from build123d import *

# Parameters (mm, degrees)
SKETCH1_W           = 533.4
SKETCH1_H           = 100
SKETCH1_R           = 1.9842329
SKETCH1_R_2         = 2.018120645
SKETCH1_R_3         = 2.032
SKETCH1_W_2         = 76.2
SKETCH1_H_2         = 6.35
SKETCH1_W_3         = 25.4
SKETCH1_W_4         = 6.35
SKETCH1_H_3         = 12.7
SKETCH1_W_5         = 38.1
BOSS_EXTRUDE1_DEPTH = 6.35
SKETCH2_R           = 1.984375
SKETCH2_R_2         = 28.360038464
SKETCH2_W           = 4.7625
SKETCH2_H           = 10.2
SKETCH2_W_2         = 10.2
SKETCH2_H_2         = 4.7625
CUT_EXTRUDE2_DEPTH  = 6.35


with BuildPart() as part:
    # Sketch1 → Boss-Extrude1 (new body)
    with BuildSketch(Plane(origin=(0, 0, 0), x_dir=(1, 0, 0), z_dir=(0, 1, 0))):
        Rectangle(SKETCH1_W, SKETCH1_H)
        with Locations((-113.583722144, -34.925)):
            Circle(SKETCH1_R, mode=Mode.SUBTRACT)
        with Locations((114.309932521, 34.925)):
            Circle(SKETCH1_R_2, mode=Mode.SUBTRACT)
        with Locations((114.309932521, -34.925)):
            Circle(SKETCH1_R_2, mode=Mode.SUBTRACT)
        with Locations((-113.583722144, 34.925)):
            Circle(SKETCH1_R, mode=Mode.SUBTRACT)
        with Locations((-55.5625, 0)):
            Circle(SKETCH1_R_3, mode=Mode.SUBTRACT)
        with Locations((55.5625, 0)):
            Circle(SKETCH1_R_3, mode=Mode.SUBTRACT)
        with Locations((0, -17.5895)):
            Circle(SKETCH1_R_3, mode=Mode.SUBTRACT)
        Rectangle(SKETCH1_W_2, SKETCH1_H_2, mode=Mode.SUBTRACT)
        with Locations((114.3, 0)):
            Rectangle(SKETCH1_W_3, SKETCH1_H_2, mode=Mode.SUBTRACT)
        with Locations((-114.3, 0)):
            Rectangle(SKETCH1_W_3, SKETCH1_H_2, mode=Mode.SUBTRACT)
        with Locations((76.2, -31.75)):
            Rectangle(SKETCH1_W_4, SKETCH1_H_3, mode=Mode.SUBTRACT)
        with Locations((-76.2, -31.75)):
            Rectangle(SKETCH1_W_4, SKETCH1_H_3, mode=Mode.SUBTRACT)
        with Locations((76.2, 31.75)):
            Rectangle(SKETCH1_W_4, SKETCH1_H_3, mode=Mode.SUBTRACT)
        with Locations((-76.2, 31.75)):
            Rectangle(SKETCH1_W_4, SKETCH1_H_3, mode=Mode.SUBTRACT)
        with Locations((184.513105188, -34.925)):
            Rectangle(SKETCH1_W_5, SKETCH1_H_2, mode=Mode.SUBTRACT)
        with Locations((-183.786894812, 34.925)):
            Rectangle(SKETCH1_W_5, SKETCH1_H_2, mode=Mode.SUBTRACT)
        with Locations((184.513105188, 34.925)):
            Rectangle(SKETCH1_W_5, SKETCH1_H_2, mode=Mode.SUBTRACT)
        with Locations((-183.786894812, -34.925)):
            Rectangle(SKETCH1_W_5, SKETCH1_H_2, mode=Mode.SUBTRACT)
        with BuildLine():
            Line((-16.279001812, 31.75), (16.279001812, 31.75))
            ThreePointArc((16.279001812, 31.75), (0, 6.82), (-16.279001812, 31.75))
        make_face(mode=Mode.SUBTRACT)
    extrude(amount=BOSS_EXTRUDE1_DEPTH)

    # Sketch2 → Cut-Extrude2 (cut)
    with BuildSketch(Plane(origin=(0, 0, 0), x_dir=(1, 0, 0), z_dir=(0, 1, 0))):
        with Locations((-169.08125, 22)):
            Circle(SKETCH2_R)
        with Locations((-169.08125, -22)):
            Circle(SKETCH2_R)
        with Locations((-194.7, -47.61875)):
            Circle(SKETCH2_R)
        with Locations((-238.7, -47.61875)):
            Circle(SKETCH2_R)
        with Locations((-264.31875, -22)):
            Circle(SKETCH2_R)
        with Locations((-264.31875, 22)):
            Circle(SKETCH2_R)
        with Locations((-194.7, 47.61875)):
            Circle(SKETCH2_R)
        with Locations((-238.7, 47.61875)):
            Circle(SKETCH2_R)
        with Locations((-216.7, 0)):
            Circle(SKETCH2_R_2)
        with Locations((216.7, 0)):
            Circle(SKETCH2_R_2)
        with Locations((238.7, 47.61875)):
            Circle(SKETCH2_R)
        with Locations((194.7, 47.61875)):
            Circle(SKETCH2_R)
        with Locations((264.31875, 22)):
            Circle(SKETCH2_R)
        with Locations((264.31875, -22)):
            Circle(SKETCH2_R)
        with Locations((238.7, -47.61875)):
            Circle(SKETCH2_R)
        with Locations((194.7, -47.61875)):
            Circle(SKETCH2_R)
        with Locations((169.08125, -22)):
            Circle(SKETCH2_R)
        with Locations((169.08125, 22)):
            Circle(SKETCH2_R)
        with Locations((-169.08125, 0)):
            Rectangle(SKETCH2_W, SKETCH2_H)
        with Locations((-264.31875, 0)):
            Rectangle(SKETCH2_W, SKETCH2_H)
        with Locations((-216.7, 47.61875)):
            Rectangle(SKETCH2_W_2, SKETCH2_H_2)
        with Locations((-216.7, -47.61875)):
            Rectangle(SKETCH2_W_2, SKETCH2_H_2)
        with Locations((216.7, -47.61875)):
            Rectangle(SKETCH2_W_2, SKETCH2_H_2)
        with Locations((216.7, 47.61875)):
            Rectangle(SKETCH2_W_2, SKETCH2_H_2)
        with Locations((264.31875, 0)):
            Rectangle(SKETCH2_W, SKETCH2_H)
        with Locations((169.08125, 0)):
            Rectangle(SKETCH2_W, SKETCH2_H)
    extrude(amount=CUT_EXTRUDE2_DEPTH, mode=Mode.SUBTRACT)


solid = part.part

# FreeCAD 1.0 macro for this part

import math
import FreeCAD as App
import Part
import Sketcher

V = App.Vector
Q = App.Units.Quantity


def add_polygon(sketch, points):
    """Adds a closed chain of lines whose ends are joined by coincident constraints."""
    first, n = sketch.GeometryCount, len(points)
    for a, b in zip(points, points[1:] + points[:1]):
        sketch.addGeometry(Part.LineSegment(App.Vector(*a, 0), App.Vector(*b, 0)), False)
    for i in range(n):
        sketch.addConstraint(Sketcher.Constraint("Coincident", first + i, 2, first + (i + 1) % n, 1))

doc = App.newDocument("Part")
params = doc.addObject("Spreadsheet::Sheet", "Params")
for row, (alias, value) in enumerate([
    ("sketch1_radius", "0.7 in"),
    ("sketch1_diameter", "0.16 in"),
    ("sketch1_width", "21 in"),
    ("sketch1_width2", "1 in"),
    ("sketch1_width3", "3 in"),
    ("pad1_length", "0.25 in"),
    ("sketch2_diameter", "0.15625 in"),
    ("sketch2_width", "0.1875 in"),
    ("pocket1_length", "0.25 in"),
], start=1):
    params.set(f"A{row}", alias)
    params.set(f"B{row}", "=" + value)
    params.setAlias(f"B{row}", alias)

body = doc.addObject("PartDesign::Body", "Body")

# Sketch on XZ plane
sketch1 = body.newObject("Sketcher::SketchObject", "Sketch")
sketch1.AttachmentSupport = (doc.getObject("XZ_Plane"), [""])
sketch1.MapMode = "FlatFace"
add_polygon(sketch1, [(-266.7, -50), (-266.7, 50), (266.7, 50), (266.7, -50)])  # lines 0-3
add_polygon(sketch1, [(-164.7, 38.1), (-202.8, 38.1), (-202.8, 31.8), (-164.7, 31.8)])  # lines 4-7
sketch1.addGeometry(Part.Circle(V(-113.6, 34.9, 0), V(0, 0, 1), 2), False)  # 8
add_polygon(sketch1, [(-73, 38.1), (-79.4, 38.1), (-79.4, 25.4), (-73, 25.4)])  # lines 9-12
sketch1.addGeometry(Part.Circle(V(0, 17.6, 0), V(0, 0, 1), 2), False)  # 13
add_polygon(sketch1, [(79.4, 38.1), (73, 38.1), (73, 25.4), (79.4, 25.4)])  # lines 14-17
sketch1.addGeometry(Part.Circle(V(114.3, 34.9, 0), V(0, 0, 1), 2), False)  # 18
add_polygon(sketch1, [(203.6, 38.1), (165.5, 38.1), (165.5, 31.8), (203.6, 31.8)])  # lines 19-22
add_polygon(sketch1, [(-101.6, 3.2), (-127, 3.2), (-127, -3.2), (-101.6, -3.2)])  # lines 23-26
sketch1.addGeometry(Part.Circle(V(-55.6, 0, 0), V(0, 0, 1), 2), False)  # 27
add_polygon(sketch1, [(38.1, 3.2), (-38.1, 3.2), (-38.1, -3.2), (38.1, -3.2)])  # lines 28-31
add_polygon(sketch1, [(-164.7, -31.8), (-202.8, -31.8), (-202.8, -38.1), (-164.7, -38.1)])  # lines 32-35
sketch1.addGeometry(Part.Circle(V(-113.6, -34.9, 0), V(0, 0, 1), 2), False)  # 36
sketch1.addGeometry(Part.ArcOfCircle(Part.Circle(V(0, -24.6, 0), V(0, 0, 1), 17.8), math.radians(-24), math.radians(204)), False)  # 37
sketch1.addGeometry(Part.LineSegment(V(-16.3, -31.8, 0), V(16.3, -31.8, 0)), False)  # 38
add_polygon(sketch1, [(-73, -25.4), (-79.4, -25.4), (-79.4, -38.1), (-73, -38.1)])  # lines 39-42
sketch1.addGeometry(Part.Circle(V(55.6, 0, 0), V(0, 0, 1), 2), False)  # 43
add_polygon(sketch1, [(127, 3.2), (101.6, 3.2), (101.6, -3.2), (127, -3.2)])  # lines 44-47
add_polygon(sketch1, [(79.4, -25.4), (73, -25.4), (73, -38.1), (79.4, -38.1)])  # lines 48-51
sketch1.addGeometry(Part.Circle(V(114.3, -34.9, 0), V(0, 0, 1), 2), False)  # 52
add_polygon(sketch1, [(203.6, -31.8), (165.5, -31.8), (165.5, -38.1), (203.6, -38.1)])  # lines 53-56
sketch1.addConstraint(Sketcher.Constraint("Coincident", 37, 1, 38, 2))
sketch1.addConstraint(Sketcher.Constraint("Coincident", 38, 1, 37, 2))
sketch1.addConstraint(Sketcher.Constraint("Vertical", 0))
sketch1.addConstraint(Sketcher.Constraint("Horizontal", 1))
sketch1.addConstraint(Sketcher.Constraint("Vertical", 2))
sketch1.addConstraint(Sketcher.Constraint("Horizontal", 3))
sketch1.addConstraint(Sketcher.Constraint("Horizontal", 4))
sketch1.addConstraint(Sketcher.Constraint("Vertical", 5))
sketch1.addConstraint(Sketcher.Constraint("Horizontal", 6))
sketch1.addConstraint(Sketcher.Constraint("Vertical", 7))
sketch1.addConstraint(Sketcher.Constraint("Horizontal", 9))
sketch1.addConstraint(Sketcher.Constraint("Vertical", 10))
sketch1.addConstraint(Sketcher.Constraint("Horizontal", 11))
sketch1.addConstraint(Sketcher.Constraint("Vertical", 12))
sketch1.addConstraint(Sketcher.Constraint("Horizontal", 14))
sketch1.addConstraint(Sketcher.Constraint("Vertical", 15))
sketch1.addConstraint(Sketcher.Constraint("Horizontal", 16))
sketch1.addConstraint(Sketcher.Constraint("Vertical", 17))
sketch1.addConstraint(Sketcher.Constraint("Horizontal", 19))
sketch1.addConstraint(Sketcher.Constraint("Vertical", 20))
sketch1.addConstraint(Sketcher.Constraint("Horizontal", 21))
sketch1.addConstraint(Sketcher.Constraint("Vertical", 22))
sketch1.addConstraint(Sketcher.Constraint("Horizontal", 23))
sketch1.addConstraint(Sketcher.Constraint("Vertical", 24))
sketch1.addConstraint(Sketcher.Constraint("Horizontal", 25))
sketch1.addConstraint(Sketcher.Constraint("Vertical", 26))
sketch1.addConstraint(Sketcher.Constraint("Horizontal", 28))
sketch1.addConstraint(Sketcher.Constraint("Vertical", 29))
sketch1.addConstraint(Sketcher.Constraint("Horizontal", 30))
sketch1.addConstraint(Sketcher.Constraint("Vertical", 31))
sketch1.addConstraint(Sketcher.Constraint("Horizontal", 32))
sketch1.addConstraint(Sketcher.Constraint("Vertical", 33))
sketch1.addConstraint(Sketcher.Constraint("Horizontal", 34))
sketch1.addConstraint(Sketcher.Constraint("Vertical", 35))
sketch1.addConstraint(Sketcher.Constraint("Horizontal", 38))
sketch1.addConstraint(Sketcher.Constraint("Horizontal", 39))
sketch1.addConstraint(Sketcher.Constraint("Vertical", 40))
sketch1.addConstraint(Sketcher.Constraint("Horizontal", 41))
sketch1.addConstraint(Sketcher.Constraint("Vertical", 42))
sketch1.addConstraint(Sketcher.Constraint("Horizontal", 44))
sketch1.addConstraint(Sketcher.Constraint("Vertical", 45))
sketch1.addConstraint(Sketcher.Constraint("Horizontal", 46))
sketch1.addConstraint(Sketcher.Constraint("Vertical", 47))
sketch1.addConstraint(Sketcher.Constraint("Horizontal", 48))
sketch1.addConstraint(Sketcher.Constraint("Vertical", 49))
sketch1.addConstraint(Sketcher.Constraint("Horizontal", 50))
sketch1.addConstraint(Sketcher.Constraint("Vertical", 51))
sketch1.addConstraint(Sketcher.Constraint("Horizontal", 53))
sketch1.addConstraint(Sketcher.Constraint("Vertical", 54))
sketch1.addConstraint(Sketcher.Constraint("Horizontal", 55))
sketch1.addConstraint(Sketcher.Constraint("Vertical", 56))
sketch1.addConstraint(Sketcher.Constraint("Equal", 13, 27))
sketch1.addConstraint(Sketcher.Constraint("Equal", 8, 36))
sketch1.addConstraint(Sketcher.Constraint("Equal", 27, 43))
sketch1.addConstraint(Sketcher.Constraint("Equal", 18, 52))
sketch1.addConstraint(Sketcher.Constraint("Symmetric", 27, 3, 43, 3, -1, 1))
sketch1.addConstraint(Sketcher.Constraint("Symmetric", 0, 2, 2, 2, -1, 1))
sketch1.addConstraint(Sketcher.Constraint("Symmetric", 28, 2, 30, 2, -1, 1))
sketch1.addConstraint(Sketcher.Constraint("Symmetric", 16, 2, 39, 2, -1, 1))
sketch1.addConstraint(Sketcher.Constraint("Symmetric", 14, 2, 41, 2, -1, 1))
sketch1.addConstraint(Sketcher.Constraint("Symmetric", 25, 2, 44, 2, -1, 1))
sketch1.addConstraint(Sketcher.Constraint("Symmetric", 23, 2, 46, 2, -1, 1))
sketch1.addConstraint(Sketcher.Constraint("Symmetric", 11, 2, 48, 2, -1, 1))
sketch1.addConstraint(Sketcher.Constraint("Symmetric", 9, 2, 50, 2, -1, 1))
sketch1.addConstraint(Sketcher.Constraint("Symmetric", 12, 2, 14, 2, -2))
sketch1.addConstraint(Sketcher.Constraint("Symmetric", 10, 2, 16, 2, -2))
sketch1.addConstraint(Sketcher.Constraint("Symmetric", 8, 3, 36, 3, -1))
sketch1.addConstraint(Sketcher.Constraint("Symmetric", 18, 3, 52, 3, -1))
sketch1.addConstraint(Sketcher.Constraint("Symmetric", 5, 2, 32, 2, -1))
sketch1.addConstraint(Sketcher.Constraint("Symmetric", 7, 2, 34, 2, -1))
sketch1.addConstraint(Sketcher.Constraint("Symmetric", 20, 2, 53, 2, -1))
sketch1.addConstraint(Sketcher.Constraint("Symmetric", 22, 2, 55, 2, -1))
sketch1.addConstraint(Sketcher.Constraint("PointOnObject", 13, 3, -2))
sketch1.addConstraint(Sketcher.Constraint("PointOnObject", 27, 3, -1))
sketch1.addConstraint(Sketcher.Constraint("PointOnObject", 37, 3, -2))
sketch1.addConstraint(Sketcher.Constraint("Horizontal", 8, 3, 18, 3))
sketch1.addConstraint(Sketcher.Constraint("Horizontal", 7, 2, 9, 2))
sketch1.addConstraint(Sketcher.Constraint("Horizontal", 17, 2, 19, 2))
sketch1.addConstraint(Sketcher.Constraint("Horizontal", 6, 2, 20, 2))
sketch1.addConstraint(Sketcher.Constraint("Horizontal", 26, 2, 28, 2))
sketch1.addConstraint(Sketcher.Constraint("Horizontal", 25, 2, 29, 2))
sketch1.addConstraint(Sketcher.Constraint("Horizontal", 35, 2, 37, 1))
sketch1.addConstraint(Sketcher.Constraint("Equal", 6, 19))
sketch1.addConstraint(Sketcher.Constraint("Equal", 50, 5))
sketch1.addConstraint(Sketcher.Constraint("Equal", 22, 24))
sketch1.addConstraint(Sketcher.Constraint("Radius", 37, Q("0.7 in")))
sketch1.addConstraint(Sketcher.Constraint("Diameter", 13, Q("0.16 in")))
sketch1.addConstraint(Sketcher.Constraint("DistanceX", 1, 1, 1, 2, Q("21 in")))
sketch1.addConstraint(Sketcher.Constraint("DistanceX", 23, 2, 23, 1, Q("1 in")))
sketch1.addConstraint(Sketcher.Constraint("DistanceX", 28, 2, 28, 1, Q("3 in")))
sketch1.addConstraint(Sketcher.Constraint("DistanceX", 4, 2, 4, 1, Q("1.5 in")))
sketch1.addConstraint(Sketcher.Constraint("DistanceY", 10, 2, 10, 1, Q("0.5 in")))
sketch1.addConstraint(Sketcher.Constraint("DistanceY", -1, 1, 10, 2, Q("1 in")))
sketch1.addConstraint(Sketcher.Constraint("DistanceX", 23, 2, -1, 1, Q("5 in")))
sketch1.addConstraint(Sketcher.Constraint("DistanceY", 2, 2, 37, 3, Q("1 in")))
sketch1.addConstraint(Sketcher.Constraint("DistanceX", 9, 2, 9, 1, Q("0.25 in")))
sketch1.addConstraint(Sketcher.Constraint("DistanceY", 36, 3, 23, 2, Q("1.5 in")))
sketch1.addConstraint(Sketcher.Constraint("Diameter", 18, Q("4.036241 mm")))
sketch1.addConstraint(Sketcher.Constraint("DistanceX", 27, 3, -1, 1, Q("2.1875 in")))
sketch1.addConstraint(Sketcher.Constraint("DistanceX", 9, 2, -1, 1, Q("3.125 in")))
sketch1.addConstraint(Sketcher.Constraint("Diameter", 8, Q("3.968466 mm")))
sketch1.addConstraint(Sketcher.Constraint("DistanceY", 0, 1, 0, 2, Q("100 mm")))
sketch1.addConstraint(Sketcher.Constraint("DistanceX", 8, 3, -1, 1, Q("4.4718001 in")))
sketch1.addConstraint(Sketcher.Constraint("DistanceY", -1, 1, 13, 3, Q("0.6925 in")))
sketch1.addConstraint(Sketcher.Constraint("DistanceX", -1, 1, 18, 3, Q("114.309933 mm")))
sketch1.addConstraint(Sketcher.Constraint("DistanceX", 4, 2, -1, 1, Q("202.836895 mm")))
sketch1.addConstraint(Sketcher.Constraint("DistanceX", -1, 1, 19, 2, Q("165.463105 mm")))
sketch1.setExpression("Constraints[133]", "Params.sketch1_radius")
sketch1.setExpression("Constraints[134]", "Params.sketch1_diameter")
sketch1.setExpression("Constraints[135]", "Params.sketch1_width")
sketch1.setExpression("Constraints[136]", "Params.sketch1_width2")
sketch1.setExpression("Constraints[137]", "Params.sketch1_width3")
pad1 = body.newObject("PartDesign::Pad", "Pad")
pad1.Profile = sketch1
pad1.setExpression("Length", "Params.pad1_length")
pad1.Reversed = True

# Sketch on XZ plane
sketch2 = body.newObject("Sketcher::SketchObject", "Sketch001")
sketch2.AttachmentSupport = (doc.getObject("XZ_Plane"), [""])
sketch2.MapMode = "FlatFace"
sketch2.addGeometry(Part.Circle(V(-169.1, -22, 0), V(0, 0, 1), 2), False)  # 0
sketch2.addGeometry(Part.Circle(V(-169.1, 22, 0), V(0, 0, 1), 2), False)  # 1
sketch2.addGeometry(Part.Circle(V(-194.7, 47.6, 0), V(0, 0, 1), 2), False)  # 2
sketch2.addGeometry(Part.Circle(V(-238.7, 47.6, 0), V(0, 0, 1), 2), False)  # 3
sketch2.addGeometry(Part.Circle(V(-264.3, 22, 0), V(0, 0, 1), 2), False)  # 4
sketch2.addGeometry(Part.Circle(V(-264.3, -22, 0), V(0, 0, 1), 2), False)  # 5
sketch2.addGeometry(Part.Circle(V(-194.7, -47.6, 0), V(0, 0, 1), 2), False)  # 6
sketch2.addGeometry(Part.Circle(V(-238.7, -47.6, 0), V(0, 0, 1), 2), False)  # 7
sketch2.addGeometry(Part.Circle(V(-216.7, 0, 0), V(0, 0, 1), 28.4), False)  # 8
sketch2.addGeometry(Part.Circle(V(216.7, 0, 0), V(0, 0, 1), 28.4), False)  # 9
sketch2.addGeometry(Part.Circle(V(238.7, -47.6, 0), V(0, 0, 1), 2), False)  # 10
sketch2.addGeometry(Part.Circle(V(194.7, -47.6, 0), V(0, 0, 1), 2), False)  # 11
sketch2.addGeometry(Part.Circle(V(264.3, -22, 0), V(0, 0, 1), 2), False)  # 12
sketch2.addGeometry(Part.Circle(V(264.3, 22, 0), V(0, 0, 1), 2), False)  # 13
sketch2.addGeometry(Part.Circle(V(238.7, 47.6, 0), V(0, 0, 1), 2), False)  # 14
sketch2.addGeometry(Part.Circle(V(194.7, 47.6, 0), V(0, 0, 1), 2), False)  # 15
sketch2.addGeometry(Part.Circle(V(169.1, 22, 0), V(0, 0, 1), 2), False)  # 16
sketch2.addGeometry(Part.Circle(V(169.1, -22, 0), V(0, 0, 1), 2), False)  # 17
add_polygon(sketch2, [(-171.5, -5.1), (-171.5, 5.1), (-166.7, 5.1), (-166.7, -5.1)])  # lines 18-21
add_polygon(sketch2, [(-266.7, -5.1), (-266.7, 5.1), (-261.9, 5.1), (-261.9, -5.1)])  # lines 22-25
add_polygon(sketch2, [(-221.8, -50), (-221.8, -45.2), (-211.6, -45.2), (-211.6, -50)])  # lines 26-29
add_polygon(sketch2, [(-221.8, 45.2), (-221.8, 50), (-211.6, 50), (-211.6, 45.2)])  # lines 30-33
add_polygon(sketch2, [(211.6, 45.2), (211.6, 50), (221.8, 50), (221.8, 45.2)])  # lines 34-37
add_polygon(sketch2, [(211.6, -50), (211.6, -45.2), (221.8, -45.2), (221.8, -50)])  # lines 38-41
add_polygon(sketch2, [(261.9, -5.1), (261.9, 5.1), (266.7, 5.1), (266.7, -5.1)])  # lines 42-45
add_polygon(sketch2, [(166.7, -5.1), (166.7, 5.1), (171.5, 5.1), (171.5, -5.1)])  # lines 46-49
sketch2.addConstraint(Sketcher.Constraint("Vertical", 18))
sketch2.addConstraint(Sketcher.Constraint("Horizontal", 19))
sketch2.addConstraint(Sketcher.Constraint("Vertical", 20))
sketch2.addConstraint(Sketcher.Constraint("Horizontal", 21))
sketch2.addConstraint(Sketcher.Constraint("Vertical", 22))
sketch2.addConstraint(Sketcher.Constraint("Horizontal", 23))
sketch2.addConstraint(Sketcher.Constraint("Vertical", 24))
sketch2.addConstraint(Sketcher.Constraint("Horizontal", 25))
sketch2.addConstraint(Sketcher.Constraint("Vertical", 26))
sketch2.addConstraint(Sketcher.Constraint("Horizontal", 27))
sketch2.addConstraint(Sketcher.Constraint("Vertical", 28))
sketch2.addConstraint(Sketcher.Constraint("Horizontal", 29))
sketch2.addConstraint(Sketcher.Constraint("Vertical", 30))
sketch2.addConstraint(Sketcher.Constraint("Horizontal", 31))
sketch2.addConstraint(Sketcher.Constraint("Vertical", 32))
sketch2.addConstraint(Sketcher.Constraint("Horizontal", 33))
sketch2.addConstraint(Sketcher.Constraint("Vertical", 34))
sketch2.addConstraint(Sketcher.Constraint("Horizontal", 35))
sketch2.addConstraint(Sketcher.Constraint("Vertical", 36))
sketch2.addConstraint(Sketcher.Constraint("Horizontal", 37))
sketch2.addConstraint(Sketcher.Constraint("Vertical", 38))
sketch2.addConstraint(Sketcher.Constraint("Horizontal", 39))
sketch2.addConstraint(Sketcher.Constraint("Vertical", 40))
sketch2.addConstraint(Sketcher.Constraint("Horizontal", 41))
sketch2.addConstraint(Sketcher.Constraint("Vertical", 42))
sketch2.addConstraint(Sketcher.Constraint("Horizontal", 43))
sketch2.addConstraint(Sketcher.Constraint("Vertical", 44))
sketch2.addConstraint(Sketcher.Constraint("Horizontal", 45))
sketch2.addConstraint(Sketcher.Constraint("Vertical", 46))
sketch2.addConstraint(Sketcher.Constraint("Horizontal", 47))
sketch2.addConstraint(Sketcher.Constraint("Vertical", 48))
sketch2.addConstraint(Sketcher.Constraint("Horizontal", 49))
sketch2.addConstraint(Sketcher.Constraint("Equal", 0, 1))
sketch2.addConstraint(Sketcher.Constraint("Equal", 1, 2))
sketch2.addConstraint(Sketcher.Constraint("Equal", 2, 3))
sketch2.addConstraint(Sketcher.Constraint("Equal", 3, 4))
sketch2.addConstraint(Sketcher.Constraint("Equal", 4, 5))
sketch2.addConstraint(Sketcher.Constraint("Equal", 5, 6))
sketch2.addConstraint(Sketcher.Constraint("Equal", 6, 7))
sketch2.addConstraint(Sketcher.Constraint("Equal", 8, 9))
sketch2.addConstraint(Sketcher.Constraint("Equal", 7, 10))
sketch2.addConstraint(Sketcher.Constraint("Equal", 10, 11))
sketch2.addConstraint(Sketcher.Constraint("Equal", 11, 12))
sketch2.addConstraint(Sketcher.Constraint("Equal", 12, 13))
sketch2.addConstraint(Sketcher.Constraint("Equal", 13, 14))
sketch2.addConstraint(Sketcher.Constraint("Equal", 14, 15))
sketch2.addConstraint(Sketcher.Constraint("Equal", 15, 16))
sketch2.addConstraint(Sketcher.Constraint("Equal", 16, 17))
sketch2.addConstraint(Sketcher.Constraint("Symmetric", 8, 3, 9, 3, -1, 1))
sketch2.addConstraint(Sketcher.Constraint("Symmetric", 3, 3, 10, 3, -1, 1))
sketch2.addConstraint(Sketcher.Constraint("Symmetric", 2, 3, 11, 3, -1, 1))
sketch2.addConstraint(Sketcher.Constraint("Symmetric", 4, 3, 12, 3, -1, 1))
sketch2.addConstraint(Sketcher.Constraint("Symmetric", 5, 3, 13, 3, -1, 1))
sketch2.addConstraint(Sketcher.Constraint("Symmetric", 7, 3, 14, 3, -1, 1))
sketch2.addConstraint(Sketcher.Constraint("Symmetric", 6, 3, 15, 3, -1, 1))
sketch2.addConstraint(Sketcher.Constraint("Symmetric", 0, 3, 16, 3, -1, 1))
sketch2.addConstraint(Sketcher.Constraint("Symmetric", 1, 3, 17, 3, -1, 1))
sketch2.addConstraint(Sketcher.Constraint("Symmetric", 28, 2, 34, 2, -1, 1))
sketch2.addConstraint(Sketcher.Constraint("Symmetric", 26, 2, 36, 2, -1, 1))
sketch2.addConstraint(Sketcher.Constraint("Symmetric", 32, 2, 38, 2, -1, 1))
sketch2.addConstraint(Sketcher.Constraint("Symmetric", 30, 2, 40, 2, -1, 1))
sketch2.addConstraint(Sketcher.Constraint("Symmetric", 24, 2, 42, 2, -1, 1))
sketch2.addConstraint(Sketcher.Constraint("Symmetric", 22, 2, 44, 2, -1, 1))
sketch2.addConstraint(Sketcher.Constraint("Symmetric", 20, 2, 46, 2, -1, 1))
sketch2.addConstraint(Sketcher.Constraint("Symmetric", 18, 2, 48, 2, -1, 1))
sketch2.addConstraint(Sketcher.Constraint("Symmetric", 7, 3, 10, 3, -2))
sketch2.addConstraint(Sketcher.Constraint("Symmetric", 6, 3, 11, 3, -2))
sketch2.addConstraint(Sketcher.Constraint("Symmetric", 5, 3, 12, 3, -2))
sketch2.addConstraint(Sketcher.Constraint("Symmetric", 1, 3, 16, 3, -2))
sketch2.addConstraint(Sketcher.Constraint("Symmetric", 31, 2, 34, 2, -2))
sketch2.addConstraint(Sketcher.Constraint("Symmetric", 33, 2, 36, 2, -2))
sketch2.addConstraint(Sketcher.Constraint("PointOnObject", 8, 3, -1))
sketch2.addConstraint(Sketcher.Constraint("Horizontal", 2, 3, 3, 3))
sketch2.addConstraint(Sketcher.Constraint("Horizontal", 1, 3, 4, 3))
sketch2.addConstraint(Sketcher.Constraint("Horizontal", 19, 2, 22, 2))
sketch2.addConstraint(Sketcher.Constraint("Horizontal", 21, 2, 24, 2))
sketch2.addConstraint(Sketcher.Constraint("Horizontal", 23, 2, 42, 2))
sketch2.addConstraint(Sketcher.Constraint("Equal", 21, 23))
sketch2.addConstraint(Sketcher.Constraint("Equal", 41, 18))
sketch2.addConstraint(Sketcher.Constraint("Equal", 49, 26))
sketch2.addConstraint(Sketcher.Constraint("Diameter", 0, Q("0.15625 in")))
sketch2.addConstraint(Sketcher.Constraint("DistanceX", 22, 2, -1, 1, Q("10.5 in")))
sketch2.addConstraint(Sketcher.Constraint("DistanceX", 19, 1, 19, 2, Q("0.1875 in")))
sketch2.addConstraint(Sketcher.Constraint("DistanceX", 4, 3, -1, 1, Q("10.40625 in")))
sketch2.addConstraint(Sketcher.Constraint("DistanceX", 18, 2, 1, 3, Q("0.09375 in")))
sketch2.addConstraint(Sketcher.Constraint("DistanceY", 7, 3, 26, 2, Q("0.09375 in")))
sketch2.addConstraint(Sketcher.Constraint("Diameter", 8, Q("56.720077 mm")))
sketch2.addConstraint(Sketcher.Constraint("DistanceX", 27, 1, 27, 2, Q("10.2 mm")))
sketch2.addConstraint(Sketcher.Constraint("DistanceY", 0, 3, -1, 1, Q("22 mm")))
sketch2.addConstraint(Sketcher.Constraint("DistanceX", 2, 3, -1, 1, Q("194.7 mm")))
sketch2.addConstraint(Sketcher.Constraint("DistanceX", 3, 3, -1, 1, Q("238.7 mm")))
sketch2.addConstraint(Sketcher.Constraint("DistanceX", 8, 3, -1, 1, Q("216.7 mm")))
sketch2.addConstraint(Sketcher.Constraint("DistanceX", 18, 2, -1, 1, Q("171.4625 mm")))
sketch2.addConstraint(Sketcher.Constraint("DistanceX", 26, 2, -1, 1, Q("221.8 mm")))
sketch2.addConstraint(Sketcher.Constraint("DistanceY", 26, 2, -1, 1, Q("45.2375 mm")))
sketch2.setExpression("Constraints[112]", "Params.sketch2_diameter")
sketch2.setExpression("Constraints[114]", "Params.sketch2_width")
pocket1 = body.newObject("PartDesign::Pocket", "Pocket")
pocket1.Profile = sketch2
pocket1.setExpression("Length", "Params.pocket1_length")

doc.recompute()
